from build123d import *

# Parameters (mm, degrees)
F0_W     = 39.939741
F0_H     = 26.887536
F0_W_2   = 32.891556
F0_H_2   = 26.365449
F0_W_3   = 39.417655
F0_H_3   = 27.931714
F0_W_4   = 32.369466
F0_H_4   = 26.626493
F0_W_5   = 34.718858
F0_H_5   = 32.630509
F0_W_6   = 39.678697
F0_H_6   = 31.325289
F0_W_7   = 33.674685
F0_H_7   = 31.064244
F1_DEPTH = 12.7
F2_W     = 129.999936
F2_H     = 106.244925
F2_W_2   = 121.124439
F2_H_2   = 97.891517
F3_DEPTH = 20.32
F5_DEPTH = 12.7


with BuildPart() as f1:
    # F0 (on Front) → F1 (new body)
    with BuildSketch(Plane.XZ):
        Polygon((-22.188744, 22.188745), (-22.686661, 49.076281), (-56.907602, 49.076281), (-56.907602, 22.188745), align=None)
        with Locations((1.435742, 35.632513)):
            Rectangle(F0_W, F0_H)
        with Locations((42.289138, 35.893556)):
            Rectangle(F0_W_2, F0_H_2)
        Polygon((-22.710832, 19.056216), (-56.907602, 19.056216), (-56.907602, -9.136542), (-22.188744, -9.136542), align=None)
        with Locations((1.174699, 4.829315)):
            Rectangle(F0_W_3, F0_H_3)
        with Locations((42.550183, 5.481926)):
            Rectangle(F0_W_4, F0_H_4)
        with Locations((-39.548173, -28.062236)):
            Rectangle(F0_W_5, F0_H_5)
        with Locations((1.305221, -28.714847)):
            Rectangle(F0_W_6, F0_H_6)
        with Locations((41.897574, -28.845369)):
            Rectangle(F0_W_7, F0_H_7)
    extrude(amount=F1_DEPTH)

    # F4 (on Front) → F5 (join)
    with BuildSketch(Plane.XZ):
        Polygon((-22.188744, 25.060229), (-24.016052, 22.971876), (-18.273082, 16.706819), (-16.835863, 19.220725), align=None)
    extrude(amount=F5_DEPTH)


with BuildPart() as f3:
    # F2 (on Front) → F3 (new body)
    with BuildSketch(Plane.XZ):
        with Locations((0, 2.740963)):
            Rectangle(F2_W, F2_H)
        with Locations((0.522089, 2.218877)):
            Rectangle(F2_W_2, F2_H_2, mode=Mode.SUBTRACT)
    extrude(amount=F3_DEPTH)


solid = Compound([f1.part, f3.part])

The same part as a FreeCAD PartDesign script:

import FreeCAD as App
import Part
import Sketcher

V = App.Vector
Q = App.Units.Quantity

doc = App.newDocument("Part")
params = doc.addObject("Spreadsheet::Sheet", "Params")
for row, (alias, value) in enumerate([
    ("pad1_length", "0.5 in"),
    ("pad2_length", "0.5 in"),
    ("pad3_length", "0.8 in"),
], start=1):
    params.set(f"A{row}", alias)
    params.set(f"B{row}", "=" + value)
    params.setAlias(f"B{row}", alias)

body = doc.addObject("PartDesign::Body", "Body")
body.AllowCompound = True

sketch1 = body.newObject("Sketcher::SketchObject", "Sketch")
sketch1.AttachmentSupport = (doc.getObject("XZ_Plane"), [""])
sketch1.MapMode = "FlatFace"
sketch1.addGeometry([
    Part.LineSegment(V(-22, 22, 0), V(-23, 49, 0)),
    Part.LineSegment(V(-23, 49, 0), V(-57, 49, 0)),
    Part.LineSegment(V(-57, 49, 0), V(-57, 22, 0)),
    Part.LineSegment(V(-57, 22, 0), V(-22, 22, 0)),
    Part.LineSegment(V(-19, 49, 0), V(-19, 22, 0)),
    Part.LineSegment(V(-19, 22, 0), V(21, 22, 0)),
    Part.LineSegment(V(21, 22, 0), V(21, 49, 0)),
    Part.LineSegment(V(21, 49, 0), V(-19, 49, 0)),
    Part.LineSegment(V(26, 49, 0), V(26, 23, 0)),
    Part.LineSegment(V(26, 23, 0), V(59, 23, 0)),
    Part.LineSegment(V(59, 23, 0), V(59, 49, 0)),
    Part.LineSegment(V(59, 49, 0), V(26, 49, 0)),
    Part.LineSegment(V(-23, 19, 0), V(-57, 19, 0)),
    Part.LineSegment(V(-57, 19, 0), V(-57, -9, 0)),
    Part.LineSegment(V(-57, -9, 0), V(-22, -9, 0)),
    Part.LineSegment(V(-22, -9, 0), V(-23, 19, 0)),
    Part.LineSegment(V(-19, 19, 0), V(-19, -9, 0)),
    Part.LineSegment(V(-19, -9, 0), V(21, -9, 0)),
    Part.LineSegment(V(21, -9, 0), V(21, 19, 0)),
    Part.LineSegment(V(21, 19, 0), V(-19, 19, 0)),
    Part.LineSegment(V(26, 19, 0), V(26, -8, 0)),
    Part.LineSegment(V(26, -8, 0), V(59, -8, 0)),
    Part.LineSegment(V(59, -8, 0), V(59, 19, 0)),
    Part.LineSegment(V(59, 19, 0), V(26, 19, 0)),
    Part.LineSegment(V(-57, -12, 0), V(-57, -44, 0)),
    Part.LineSegment(V(-57, -44, 0), V(-22, -44, 0)),
    Part.LineSegment(V(-22, -44, 0), V(-22, -12, 0)),
    Part.LineSegment(V(-22, -12, 0), V(-57, -12, 0)),
    Part.LineSegment(V(-19, -13, 0), V(-19, -44, 0)),
    Part.LineSegment(V(-19, -44, 0), V(21, -44, 0)),
    Part.LineSegment(V(21, -44, 0), V(21, -13, 0)),
    Part.LineSegment(V(21, -13, 0), V(-19, -13, 0)),
    Part.LineSegment(V(25, -13, 0), V(25, -44, 0)),
    Part.LineSegment(V(25, -44, 0), V(59, -44, 0)),
    Part.LineSegment(V(59, -44, 0), V(59, -13, 0)),
    Part.LineSegment(V(59, -13, 0), V(25, -13, 0)),
], False)
sketch1.addConstraint([
    Sketcher.Constraint("Coincident", 0, 2, 1, 1),
    Sketcher.Constraint("Coincident", 1, 2, 2, 1),
    Sketcher.Constraint("Coincident", 2, 2, 3, 1),
    Sketcher.Constraint("Coincident", 3, 2, 0, 1),
    Sketcher.Constraint("Coincident", 4, 2, 5, 1),
    Sketcher.Constraint("Coincident", 5, 2, 6, 1),
    Sketcher.Constraint("Coincident", 6, 2, 7, 1),
    Sketcher.Constraint("Coincident", 7, 2, 4, 1),
    Sketcher.Constraint("Coincident", 8, 2, 9, 1),
    Sketcher.Constraint("Coincident", 9, 2, 10, 1),
    Sketcher.Constraint("Coincident", 10, 2, 11, 1),
    Sketcher.Constraint("Coincident", 11, 2, 8, 1),
    Sketcher.Constraint("Coincident", 12, 2, 13, 1),
    Sketcher.Constraint("Coincident", 13, 2, 14, 1),
    Sketcher.Constraint("Coincident", 14, 2, 15, 1),
    Sketcher.Constraint("Coincident", 15, 2, 12, 1),
    Sketcher.Constraint("Coincident", 16, 2, 17, 1),
    Sketcher.Constraint("Coincident", 17, 2, 18, 1),
    Sketcher.Constraint("Coincident", 18, 2, 19, 1),
    Sketcher.Constraint("Coincident", 19, 2, 16, 1),
    Sketcher.Constraint("Coincident", 20, 2, 21, 1),
    Sketcher.Constraint("Coincident", 21, 2, 22, 1),
    Sketcher.Constraint("Coincident", 22, 2, 23, 1),
    Sketcher.Constraint("Coincident", 23, 2, 20, 1),
    Sketcher.Constraint("Coincident", 24, 2, 25, 1),
    Sketcher.Constraint("Coincident", 25, 2, 26, 1),
    Sketcher.Constraint("Coincident", 26, 2, 27, 1),
    Sketcher.Constraint("Coincident", 27, 2, 24, 1),
    Sketcher.Constraint("Coincident", 28, 2, 29, 1),
    Sketcher.Constraint("Coincident", 29, 2, 30, 1),
    Sketcher.Constraint("Coincident", 30, 2, 31, 1),
    Sketcher.Constraint("Coincident", 31, 2, 28, 1),
    Sketcher.Constraint("Coincident", 32, 2, 33, 1),
    Sketcher.Constraint("Coincident", 33, 2, 34, 1),
    Sketcher.Constraint("Coincident", 34, 2, 35, 1),
    Sketcher.Constraint("Coincident", 35, 2, 32, 1),
    Sketcher.Constraint("Horizontal", 1),
    Sketcher.Constraint("Vertical", 2),
    Sketcher.Constraint("Horizontal", 3),
    Sketcher.Constraint("Vertical", 4),
    Sketcher.Constraint("Horizontal", 5),
    Sketcher.Constraint("Vertical", 6),
    Sketcher.Constraint("Horizontal", 7),
    Sketcher.Constraint("Vertical", 8),
    Sketcher.Constraint("Horizontal", 9),
    Sketcher.Constraint("Vertical", 10),
    Sketcher.Constraint("Horizontal", 11),
    Sketcher.Constraint("Horizontal", 12),
    Sketcher.Constraint("Vertical", 13),
    Sketcher.Constraint("Horizontal", 14),
    Sketcher.Constraint("Vertical", 16),
    Sketcher.Constraint("Horizontal", 17),
    Sketcher.Constraint("Vertical", 18),
    Sketcher.Constraint("Horizontal", 19),
    Sketcher.Constraint("Vertical", 20),
    Sketcher.Constraint("Horizontal", 21),
    Sketcher.Constraint("Vertical", 22),
    Sketcher.Constraint("Horizontal", 23),
    Sketcher.Constraint("Vertical", 24),
    Sketcher.Constraint("Horizontal", 25),
    Sketcher.Constraint("Vertical", 26),
    Sketcher.Constraint("Horizontal", 27),
    Sketcher.Constraint("Vertical", 28),
    Sketcher.Constraint("Horizontal", 29),
    Sketcher.Constraint("Vertical", 30),
    Sketcher.Constraint("Horizontal", 31),
    Sketcher.Constraint("Vertical", 32),
    Sketcher.Constraint("Horizontal", 33),
    Sketcher.Constraint("Vertical", 34),
    Sketcher.Constraint("Horizontal", 35),
    Sketcher.Constraint("Parallel", 0, 15),
    Sketcher.Constraint("Horizontal", 3, 2, 4, 2),
    Sketcher.Constraint("Horizontal", 1, 2, 6, 2),
    Sketcher.Constraint("Horizontal", 7, 2, 10, 2),
    Sketcher.Constraint("Horizontal", 14, 2, 16, 2),
    Sketcher.Constraint("Horizontal", 19, 2, 22, 2),
    Sketcher.Constraint("Horizontal", 25, 2, 28, 2),
    Sketcher.Constraint("Horizontal", 29, 2, 32, 2),
    Sketcher.Constraint("Vertical", 2, 2, 12, 2),
    Sketcher.Constraint("Vertical", 3, 2, 14, 2),
    Sketcher.Constraint("Vertical", 7, 2, 16, 2),
    Sketcher.Constraint("Vertical", 10, 2, 21, 2),
    Sketcher.Constraint("Vertical", 13, 2, 24, 2),
    Sketcher.Constraint("Vertical", 14, 2, 25, 2),
    Sketcher.Constraint("Vertical", 19, 2, 28, 2),
    Sketcher.Constraint("Vertical", 22, 2, 33, 2),
    Sketcher.Constraint("DistanceX", 1, 2, 1, 1, Q("34.220941 mm")),
    Sketcher.Constraint("DistanceX", 5, 1, 5, 2, Q("39.939741 mm")),
    Sketcher.Constraint("DistanceX", 12, 2, 12, 1, Q("34.19677 mm")),
    Sketcher.Constraint("DistanceY", 8, 2, 8, 1, Q("26.365449 mm")),
    Sketcher.Constraint("DistanceY", 24, 2, 24, 1, Q("32.630509 mm")),
    Sketcher.Constraint("DistanceY", 28, 2, 28, 1, Q("31.325289 mm")),
    Sketcher.Constraint("DistanceX", 1, 2, -1, 1, Q("56.907602 mm")),
    Sketcher.Constraint("Distance", 15, Q("28.197592 mm")),
    Sketcher.Constraint("DistanceX", 3, 1, 3, 2, Q("34.718858 mm")),
    Sketcher.Constraint("DistanceX", 9, 1, 9, 2, Q("32.891556 mm")),
    Sketcher.Constraint("DistanceX", 17, 1, 17, 2, Q("39.417655 mm")),
    Sketcher.Constraint("DistanceX", 21, 1, 21, 2, Q("32.369466 mm")),
    Sketcher.Constraint("DistanceX", 29, 1, 29, 2, Q("39.678697 mm")),
    Sketcher.Constraint("DistanceX", 33, 1, 33, 2, Q("33.674685 mm")),
    Sketcher.Constraint("DistanceY", 16, 2, 16, 1, Q("27.931714 mm")),
    Sketcher.Constraint("DistanceY", 20, 2, 20, 1, Q("26.626493 mm")),
    Sketcher.Constraint("DistanceY", 32, 2, 32, 1, Q("31.064244 mm")),
    Sketcher.Constraint("DistanceY", -1, 1, 0, 2, Q("49.076281 mm")),
    Sketcher.Constraint("DistanceX", 4, 2, -1, 1, Q("18.534129 mm")),
    Sketcher.Constraint("DistanceX", -1, 1, 8, 2, Q("25.84336 mm")),
    Sketcher.Constraint("DistanceY", 20, 2, -1, 1, Q("7.831321 mm")),
    Sketcher.Constraint("DistanceY", 24, 2, -1, 1, Q("44.377491 mm")),
])
pad1 = body.newObject("PartDesign::Pad", "Pad")
pad1.Profile = sketch1
pad1.setExpression("Length", "Params.pad1_length")

sketch2 = body.newObject("Sketcher::SketchObject", "Sketch001")
sketch2.AttachmentSupport = (doc.getObject("XZ_Plane"), [""])
sketch2.MapMode = "FlatFace"
sketch2.addGeometry([
    Part.LineSegment(V(-22.2, 25.1, 0), V(-24, 23, 0)),
    Part.LineSegment(V(-24, 23, 0), V(-18.3, 16.7, 0)),
    Part.LineSegment(V(-18.3, 16.7, 0), V(-16.8, 19.2, 0)),
    Part.LineSegment(V(-16.8, 19.2, 0), V(-22.2, 25.1, 0)),
], False)
sketch2.addConstraint([
    Sketcher.Constraint("Coincident", 0, 2, 1, 1),
    Sketcher.Constraint("Coincident", 1, 2, 2, 1),
    Sketcher.Constraint("Coincident", 2, 2, 3, 1),
    Sketcher.Constraint("Coincident", 3, 2, 0, 1),
    Sketcher.Constraint("Parallel", 1, 3),
    Sketcher.Constraint("Distance", 1, Q("8.498979 mm")),
    Sketcher.Constraint("Distance", 3, Q("7.921688 mm")),
    Sketcher.Constraint("DistanceX", 0, 2, -1, 1, Q("24.016052 mm")),
    Sketcher.Constraint("DistanceX", 1, 2, -1, 1, Q("18.273082 mm")),
    Sketcher.Constraint("DistanceY", -1, 1, 1, 2, Q("16.706819 mm")),
    Sketcher.Constraint("DistanceY", -1, 1, 3, 2, Q("25.060229 mm")),
    Sketcher.Constraint("DistanceX", 1, 2, 2, 2, Q("1.437219 mm")),
])
pad2 = body.newObject("PartDesign::Pad", "Pad001")
pad2.Profile = sketch2
pad2.setExpression("Length", "Params.pad2_length")
body2 = doc.addObject("PartDesign::Body", "Body001")

sketch3 = body2.newObject("Sketcher::SketchObject", "Sketch002")
sketch3.AttachmentSupport = (doc.getObject("XZ_Plane001"), [""])
sketch3.MapMode = "FlatFace"
sketch3.addGeometry([
    Part.LineSegment(V(-65, 56, 0), V(-65, -50, 0)),
    Part.LineSegment(V(-65, -50, 0), V(65, -50, 0)),
    Part.LineSegment(V(65, -50, 0), V(65, 56, 0)),
    Part.LineSegment(V(65, 56, 0), V(-65, 56, 0)),
    Part.LineSegment(V(61, -47, 0), V(-60, -47, 0)),
    Part.LineSegment(V(-60, -47, 0), V(-60, 51, 0)),
    Part.LineSegment(V(-60, 51, 0), V(61, 51, 0)),
    Part.LineSegment(V(61, 51, 0), V(61, -47, 0)),
], False)
sketch3.addConstraint([
    Sketcher.Constraint("Coincident", 0, 2, 1, 1),
    Sketcher.Constraint("Coincident", 1, 2, 2, 1),
    Sketcher.Constraint("Coincident", 2, 2, 3, 1),
    Sketcher.Constraint("Coincident", 3, 2, 0, 1),
    Sketcher.Constraint("Coincident", 4, 2, 5, 1),
    Sketcher.Constraint("Coincident", 5, 2, 6, 1),
    Sketcher.Constraint("Coincident", 6, 2, 7, 1),
    Sketcher.Constraint("Coincident", 7, 2, 4, 1),
    Sketcher.Constraint("Vertical", 0),
    Sketcher.Constraint("Horizontal", 1),
    Sketcher.Constraint("Vertical", 2),
    Sketcher.Constraint("Horizontal", 3),
    Sketcher.Constraint("Horizontal", 4),
    Sketcher.Constraint("Vertical", 5),
    Sketcher.Constraint("Horizontal", 6),
    Sketcher.Constraint("Vertical", 7),
    Sketcher.Constraint("DistanceX", 4, 2, 4, 1, Q("121.124439 mm")),
    Sketcher.Constraint("DistanceY", 0, 2, -1, 1, Q("50.381499 mm")),
    Sketcher.Constraint("DistanceX", 4, 2, 1, 2, Q("125.040098 mm")),
    Sketcher.Constraint("DistanceX", 1, 1, 1, 2, Q("129.999936 mm")),
    Sketcher.Constraint("DistanceY", 0, 2, 0, 1, Q("106.244925 mm")),
    Sketcher.Constraint("DistanceY", 5, 1, 5, 2, Q("97.891517 mm")),
    Sketcher.Constraint("DistanceX", 4, 2, -1, 1, Q("60.04013 mm")),
    Sketcher.Constraint("DistanceY", 4, 2, -1, 1, Q("46.726881 mm")),
])
pad3 = body2.newObject("PartDesign::Pad", "Pad002")
pad3.Profile = sketch3
pad3.setExpression("Length", "Params.pad3_length")

doc.recompute()
